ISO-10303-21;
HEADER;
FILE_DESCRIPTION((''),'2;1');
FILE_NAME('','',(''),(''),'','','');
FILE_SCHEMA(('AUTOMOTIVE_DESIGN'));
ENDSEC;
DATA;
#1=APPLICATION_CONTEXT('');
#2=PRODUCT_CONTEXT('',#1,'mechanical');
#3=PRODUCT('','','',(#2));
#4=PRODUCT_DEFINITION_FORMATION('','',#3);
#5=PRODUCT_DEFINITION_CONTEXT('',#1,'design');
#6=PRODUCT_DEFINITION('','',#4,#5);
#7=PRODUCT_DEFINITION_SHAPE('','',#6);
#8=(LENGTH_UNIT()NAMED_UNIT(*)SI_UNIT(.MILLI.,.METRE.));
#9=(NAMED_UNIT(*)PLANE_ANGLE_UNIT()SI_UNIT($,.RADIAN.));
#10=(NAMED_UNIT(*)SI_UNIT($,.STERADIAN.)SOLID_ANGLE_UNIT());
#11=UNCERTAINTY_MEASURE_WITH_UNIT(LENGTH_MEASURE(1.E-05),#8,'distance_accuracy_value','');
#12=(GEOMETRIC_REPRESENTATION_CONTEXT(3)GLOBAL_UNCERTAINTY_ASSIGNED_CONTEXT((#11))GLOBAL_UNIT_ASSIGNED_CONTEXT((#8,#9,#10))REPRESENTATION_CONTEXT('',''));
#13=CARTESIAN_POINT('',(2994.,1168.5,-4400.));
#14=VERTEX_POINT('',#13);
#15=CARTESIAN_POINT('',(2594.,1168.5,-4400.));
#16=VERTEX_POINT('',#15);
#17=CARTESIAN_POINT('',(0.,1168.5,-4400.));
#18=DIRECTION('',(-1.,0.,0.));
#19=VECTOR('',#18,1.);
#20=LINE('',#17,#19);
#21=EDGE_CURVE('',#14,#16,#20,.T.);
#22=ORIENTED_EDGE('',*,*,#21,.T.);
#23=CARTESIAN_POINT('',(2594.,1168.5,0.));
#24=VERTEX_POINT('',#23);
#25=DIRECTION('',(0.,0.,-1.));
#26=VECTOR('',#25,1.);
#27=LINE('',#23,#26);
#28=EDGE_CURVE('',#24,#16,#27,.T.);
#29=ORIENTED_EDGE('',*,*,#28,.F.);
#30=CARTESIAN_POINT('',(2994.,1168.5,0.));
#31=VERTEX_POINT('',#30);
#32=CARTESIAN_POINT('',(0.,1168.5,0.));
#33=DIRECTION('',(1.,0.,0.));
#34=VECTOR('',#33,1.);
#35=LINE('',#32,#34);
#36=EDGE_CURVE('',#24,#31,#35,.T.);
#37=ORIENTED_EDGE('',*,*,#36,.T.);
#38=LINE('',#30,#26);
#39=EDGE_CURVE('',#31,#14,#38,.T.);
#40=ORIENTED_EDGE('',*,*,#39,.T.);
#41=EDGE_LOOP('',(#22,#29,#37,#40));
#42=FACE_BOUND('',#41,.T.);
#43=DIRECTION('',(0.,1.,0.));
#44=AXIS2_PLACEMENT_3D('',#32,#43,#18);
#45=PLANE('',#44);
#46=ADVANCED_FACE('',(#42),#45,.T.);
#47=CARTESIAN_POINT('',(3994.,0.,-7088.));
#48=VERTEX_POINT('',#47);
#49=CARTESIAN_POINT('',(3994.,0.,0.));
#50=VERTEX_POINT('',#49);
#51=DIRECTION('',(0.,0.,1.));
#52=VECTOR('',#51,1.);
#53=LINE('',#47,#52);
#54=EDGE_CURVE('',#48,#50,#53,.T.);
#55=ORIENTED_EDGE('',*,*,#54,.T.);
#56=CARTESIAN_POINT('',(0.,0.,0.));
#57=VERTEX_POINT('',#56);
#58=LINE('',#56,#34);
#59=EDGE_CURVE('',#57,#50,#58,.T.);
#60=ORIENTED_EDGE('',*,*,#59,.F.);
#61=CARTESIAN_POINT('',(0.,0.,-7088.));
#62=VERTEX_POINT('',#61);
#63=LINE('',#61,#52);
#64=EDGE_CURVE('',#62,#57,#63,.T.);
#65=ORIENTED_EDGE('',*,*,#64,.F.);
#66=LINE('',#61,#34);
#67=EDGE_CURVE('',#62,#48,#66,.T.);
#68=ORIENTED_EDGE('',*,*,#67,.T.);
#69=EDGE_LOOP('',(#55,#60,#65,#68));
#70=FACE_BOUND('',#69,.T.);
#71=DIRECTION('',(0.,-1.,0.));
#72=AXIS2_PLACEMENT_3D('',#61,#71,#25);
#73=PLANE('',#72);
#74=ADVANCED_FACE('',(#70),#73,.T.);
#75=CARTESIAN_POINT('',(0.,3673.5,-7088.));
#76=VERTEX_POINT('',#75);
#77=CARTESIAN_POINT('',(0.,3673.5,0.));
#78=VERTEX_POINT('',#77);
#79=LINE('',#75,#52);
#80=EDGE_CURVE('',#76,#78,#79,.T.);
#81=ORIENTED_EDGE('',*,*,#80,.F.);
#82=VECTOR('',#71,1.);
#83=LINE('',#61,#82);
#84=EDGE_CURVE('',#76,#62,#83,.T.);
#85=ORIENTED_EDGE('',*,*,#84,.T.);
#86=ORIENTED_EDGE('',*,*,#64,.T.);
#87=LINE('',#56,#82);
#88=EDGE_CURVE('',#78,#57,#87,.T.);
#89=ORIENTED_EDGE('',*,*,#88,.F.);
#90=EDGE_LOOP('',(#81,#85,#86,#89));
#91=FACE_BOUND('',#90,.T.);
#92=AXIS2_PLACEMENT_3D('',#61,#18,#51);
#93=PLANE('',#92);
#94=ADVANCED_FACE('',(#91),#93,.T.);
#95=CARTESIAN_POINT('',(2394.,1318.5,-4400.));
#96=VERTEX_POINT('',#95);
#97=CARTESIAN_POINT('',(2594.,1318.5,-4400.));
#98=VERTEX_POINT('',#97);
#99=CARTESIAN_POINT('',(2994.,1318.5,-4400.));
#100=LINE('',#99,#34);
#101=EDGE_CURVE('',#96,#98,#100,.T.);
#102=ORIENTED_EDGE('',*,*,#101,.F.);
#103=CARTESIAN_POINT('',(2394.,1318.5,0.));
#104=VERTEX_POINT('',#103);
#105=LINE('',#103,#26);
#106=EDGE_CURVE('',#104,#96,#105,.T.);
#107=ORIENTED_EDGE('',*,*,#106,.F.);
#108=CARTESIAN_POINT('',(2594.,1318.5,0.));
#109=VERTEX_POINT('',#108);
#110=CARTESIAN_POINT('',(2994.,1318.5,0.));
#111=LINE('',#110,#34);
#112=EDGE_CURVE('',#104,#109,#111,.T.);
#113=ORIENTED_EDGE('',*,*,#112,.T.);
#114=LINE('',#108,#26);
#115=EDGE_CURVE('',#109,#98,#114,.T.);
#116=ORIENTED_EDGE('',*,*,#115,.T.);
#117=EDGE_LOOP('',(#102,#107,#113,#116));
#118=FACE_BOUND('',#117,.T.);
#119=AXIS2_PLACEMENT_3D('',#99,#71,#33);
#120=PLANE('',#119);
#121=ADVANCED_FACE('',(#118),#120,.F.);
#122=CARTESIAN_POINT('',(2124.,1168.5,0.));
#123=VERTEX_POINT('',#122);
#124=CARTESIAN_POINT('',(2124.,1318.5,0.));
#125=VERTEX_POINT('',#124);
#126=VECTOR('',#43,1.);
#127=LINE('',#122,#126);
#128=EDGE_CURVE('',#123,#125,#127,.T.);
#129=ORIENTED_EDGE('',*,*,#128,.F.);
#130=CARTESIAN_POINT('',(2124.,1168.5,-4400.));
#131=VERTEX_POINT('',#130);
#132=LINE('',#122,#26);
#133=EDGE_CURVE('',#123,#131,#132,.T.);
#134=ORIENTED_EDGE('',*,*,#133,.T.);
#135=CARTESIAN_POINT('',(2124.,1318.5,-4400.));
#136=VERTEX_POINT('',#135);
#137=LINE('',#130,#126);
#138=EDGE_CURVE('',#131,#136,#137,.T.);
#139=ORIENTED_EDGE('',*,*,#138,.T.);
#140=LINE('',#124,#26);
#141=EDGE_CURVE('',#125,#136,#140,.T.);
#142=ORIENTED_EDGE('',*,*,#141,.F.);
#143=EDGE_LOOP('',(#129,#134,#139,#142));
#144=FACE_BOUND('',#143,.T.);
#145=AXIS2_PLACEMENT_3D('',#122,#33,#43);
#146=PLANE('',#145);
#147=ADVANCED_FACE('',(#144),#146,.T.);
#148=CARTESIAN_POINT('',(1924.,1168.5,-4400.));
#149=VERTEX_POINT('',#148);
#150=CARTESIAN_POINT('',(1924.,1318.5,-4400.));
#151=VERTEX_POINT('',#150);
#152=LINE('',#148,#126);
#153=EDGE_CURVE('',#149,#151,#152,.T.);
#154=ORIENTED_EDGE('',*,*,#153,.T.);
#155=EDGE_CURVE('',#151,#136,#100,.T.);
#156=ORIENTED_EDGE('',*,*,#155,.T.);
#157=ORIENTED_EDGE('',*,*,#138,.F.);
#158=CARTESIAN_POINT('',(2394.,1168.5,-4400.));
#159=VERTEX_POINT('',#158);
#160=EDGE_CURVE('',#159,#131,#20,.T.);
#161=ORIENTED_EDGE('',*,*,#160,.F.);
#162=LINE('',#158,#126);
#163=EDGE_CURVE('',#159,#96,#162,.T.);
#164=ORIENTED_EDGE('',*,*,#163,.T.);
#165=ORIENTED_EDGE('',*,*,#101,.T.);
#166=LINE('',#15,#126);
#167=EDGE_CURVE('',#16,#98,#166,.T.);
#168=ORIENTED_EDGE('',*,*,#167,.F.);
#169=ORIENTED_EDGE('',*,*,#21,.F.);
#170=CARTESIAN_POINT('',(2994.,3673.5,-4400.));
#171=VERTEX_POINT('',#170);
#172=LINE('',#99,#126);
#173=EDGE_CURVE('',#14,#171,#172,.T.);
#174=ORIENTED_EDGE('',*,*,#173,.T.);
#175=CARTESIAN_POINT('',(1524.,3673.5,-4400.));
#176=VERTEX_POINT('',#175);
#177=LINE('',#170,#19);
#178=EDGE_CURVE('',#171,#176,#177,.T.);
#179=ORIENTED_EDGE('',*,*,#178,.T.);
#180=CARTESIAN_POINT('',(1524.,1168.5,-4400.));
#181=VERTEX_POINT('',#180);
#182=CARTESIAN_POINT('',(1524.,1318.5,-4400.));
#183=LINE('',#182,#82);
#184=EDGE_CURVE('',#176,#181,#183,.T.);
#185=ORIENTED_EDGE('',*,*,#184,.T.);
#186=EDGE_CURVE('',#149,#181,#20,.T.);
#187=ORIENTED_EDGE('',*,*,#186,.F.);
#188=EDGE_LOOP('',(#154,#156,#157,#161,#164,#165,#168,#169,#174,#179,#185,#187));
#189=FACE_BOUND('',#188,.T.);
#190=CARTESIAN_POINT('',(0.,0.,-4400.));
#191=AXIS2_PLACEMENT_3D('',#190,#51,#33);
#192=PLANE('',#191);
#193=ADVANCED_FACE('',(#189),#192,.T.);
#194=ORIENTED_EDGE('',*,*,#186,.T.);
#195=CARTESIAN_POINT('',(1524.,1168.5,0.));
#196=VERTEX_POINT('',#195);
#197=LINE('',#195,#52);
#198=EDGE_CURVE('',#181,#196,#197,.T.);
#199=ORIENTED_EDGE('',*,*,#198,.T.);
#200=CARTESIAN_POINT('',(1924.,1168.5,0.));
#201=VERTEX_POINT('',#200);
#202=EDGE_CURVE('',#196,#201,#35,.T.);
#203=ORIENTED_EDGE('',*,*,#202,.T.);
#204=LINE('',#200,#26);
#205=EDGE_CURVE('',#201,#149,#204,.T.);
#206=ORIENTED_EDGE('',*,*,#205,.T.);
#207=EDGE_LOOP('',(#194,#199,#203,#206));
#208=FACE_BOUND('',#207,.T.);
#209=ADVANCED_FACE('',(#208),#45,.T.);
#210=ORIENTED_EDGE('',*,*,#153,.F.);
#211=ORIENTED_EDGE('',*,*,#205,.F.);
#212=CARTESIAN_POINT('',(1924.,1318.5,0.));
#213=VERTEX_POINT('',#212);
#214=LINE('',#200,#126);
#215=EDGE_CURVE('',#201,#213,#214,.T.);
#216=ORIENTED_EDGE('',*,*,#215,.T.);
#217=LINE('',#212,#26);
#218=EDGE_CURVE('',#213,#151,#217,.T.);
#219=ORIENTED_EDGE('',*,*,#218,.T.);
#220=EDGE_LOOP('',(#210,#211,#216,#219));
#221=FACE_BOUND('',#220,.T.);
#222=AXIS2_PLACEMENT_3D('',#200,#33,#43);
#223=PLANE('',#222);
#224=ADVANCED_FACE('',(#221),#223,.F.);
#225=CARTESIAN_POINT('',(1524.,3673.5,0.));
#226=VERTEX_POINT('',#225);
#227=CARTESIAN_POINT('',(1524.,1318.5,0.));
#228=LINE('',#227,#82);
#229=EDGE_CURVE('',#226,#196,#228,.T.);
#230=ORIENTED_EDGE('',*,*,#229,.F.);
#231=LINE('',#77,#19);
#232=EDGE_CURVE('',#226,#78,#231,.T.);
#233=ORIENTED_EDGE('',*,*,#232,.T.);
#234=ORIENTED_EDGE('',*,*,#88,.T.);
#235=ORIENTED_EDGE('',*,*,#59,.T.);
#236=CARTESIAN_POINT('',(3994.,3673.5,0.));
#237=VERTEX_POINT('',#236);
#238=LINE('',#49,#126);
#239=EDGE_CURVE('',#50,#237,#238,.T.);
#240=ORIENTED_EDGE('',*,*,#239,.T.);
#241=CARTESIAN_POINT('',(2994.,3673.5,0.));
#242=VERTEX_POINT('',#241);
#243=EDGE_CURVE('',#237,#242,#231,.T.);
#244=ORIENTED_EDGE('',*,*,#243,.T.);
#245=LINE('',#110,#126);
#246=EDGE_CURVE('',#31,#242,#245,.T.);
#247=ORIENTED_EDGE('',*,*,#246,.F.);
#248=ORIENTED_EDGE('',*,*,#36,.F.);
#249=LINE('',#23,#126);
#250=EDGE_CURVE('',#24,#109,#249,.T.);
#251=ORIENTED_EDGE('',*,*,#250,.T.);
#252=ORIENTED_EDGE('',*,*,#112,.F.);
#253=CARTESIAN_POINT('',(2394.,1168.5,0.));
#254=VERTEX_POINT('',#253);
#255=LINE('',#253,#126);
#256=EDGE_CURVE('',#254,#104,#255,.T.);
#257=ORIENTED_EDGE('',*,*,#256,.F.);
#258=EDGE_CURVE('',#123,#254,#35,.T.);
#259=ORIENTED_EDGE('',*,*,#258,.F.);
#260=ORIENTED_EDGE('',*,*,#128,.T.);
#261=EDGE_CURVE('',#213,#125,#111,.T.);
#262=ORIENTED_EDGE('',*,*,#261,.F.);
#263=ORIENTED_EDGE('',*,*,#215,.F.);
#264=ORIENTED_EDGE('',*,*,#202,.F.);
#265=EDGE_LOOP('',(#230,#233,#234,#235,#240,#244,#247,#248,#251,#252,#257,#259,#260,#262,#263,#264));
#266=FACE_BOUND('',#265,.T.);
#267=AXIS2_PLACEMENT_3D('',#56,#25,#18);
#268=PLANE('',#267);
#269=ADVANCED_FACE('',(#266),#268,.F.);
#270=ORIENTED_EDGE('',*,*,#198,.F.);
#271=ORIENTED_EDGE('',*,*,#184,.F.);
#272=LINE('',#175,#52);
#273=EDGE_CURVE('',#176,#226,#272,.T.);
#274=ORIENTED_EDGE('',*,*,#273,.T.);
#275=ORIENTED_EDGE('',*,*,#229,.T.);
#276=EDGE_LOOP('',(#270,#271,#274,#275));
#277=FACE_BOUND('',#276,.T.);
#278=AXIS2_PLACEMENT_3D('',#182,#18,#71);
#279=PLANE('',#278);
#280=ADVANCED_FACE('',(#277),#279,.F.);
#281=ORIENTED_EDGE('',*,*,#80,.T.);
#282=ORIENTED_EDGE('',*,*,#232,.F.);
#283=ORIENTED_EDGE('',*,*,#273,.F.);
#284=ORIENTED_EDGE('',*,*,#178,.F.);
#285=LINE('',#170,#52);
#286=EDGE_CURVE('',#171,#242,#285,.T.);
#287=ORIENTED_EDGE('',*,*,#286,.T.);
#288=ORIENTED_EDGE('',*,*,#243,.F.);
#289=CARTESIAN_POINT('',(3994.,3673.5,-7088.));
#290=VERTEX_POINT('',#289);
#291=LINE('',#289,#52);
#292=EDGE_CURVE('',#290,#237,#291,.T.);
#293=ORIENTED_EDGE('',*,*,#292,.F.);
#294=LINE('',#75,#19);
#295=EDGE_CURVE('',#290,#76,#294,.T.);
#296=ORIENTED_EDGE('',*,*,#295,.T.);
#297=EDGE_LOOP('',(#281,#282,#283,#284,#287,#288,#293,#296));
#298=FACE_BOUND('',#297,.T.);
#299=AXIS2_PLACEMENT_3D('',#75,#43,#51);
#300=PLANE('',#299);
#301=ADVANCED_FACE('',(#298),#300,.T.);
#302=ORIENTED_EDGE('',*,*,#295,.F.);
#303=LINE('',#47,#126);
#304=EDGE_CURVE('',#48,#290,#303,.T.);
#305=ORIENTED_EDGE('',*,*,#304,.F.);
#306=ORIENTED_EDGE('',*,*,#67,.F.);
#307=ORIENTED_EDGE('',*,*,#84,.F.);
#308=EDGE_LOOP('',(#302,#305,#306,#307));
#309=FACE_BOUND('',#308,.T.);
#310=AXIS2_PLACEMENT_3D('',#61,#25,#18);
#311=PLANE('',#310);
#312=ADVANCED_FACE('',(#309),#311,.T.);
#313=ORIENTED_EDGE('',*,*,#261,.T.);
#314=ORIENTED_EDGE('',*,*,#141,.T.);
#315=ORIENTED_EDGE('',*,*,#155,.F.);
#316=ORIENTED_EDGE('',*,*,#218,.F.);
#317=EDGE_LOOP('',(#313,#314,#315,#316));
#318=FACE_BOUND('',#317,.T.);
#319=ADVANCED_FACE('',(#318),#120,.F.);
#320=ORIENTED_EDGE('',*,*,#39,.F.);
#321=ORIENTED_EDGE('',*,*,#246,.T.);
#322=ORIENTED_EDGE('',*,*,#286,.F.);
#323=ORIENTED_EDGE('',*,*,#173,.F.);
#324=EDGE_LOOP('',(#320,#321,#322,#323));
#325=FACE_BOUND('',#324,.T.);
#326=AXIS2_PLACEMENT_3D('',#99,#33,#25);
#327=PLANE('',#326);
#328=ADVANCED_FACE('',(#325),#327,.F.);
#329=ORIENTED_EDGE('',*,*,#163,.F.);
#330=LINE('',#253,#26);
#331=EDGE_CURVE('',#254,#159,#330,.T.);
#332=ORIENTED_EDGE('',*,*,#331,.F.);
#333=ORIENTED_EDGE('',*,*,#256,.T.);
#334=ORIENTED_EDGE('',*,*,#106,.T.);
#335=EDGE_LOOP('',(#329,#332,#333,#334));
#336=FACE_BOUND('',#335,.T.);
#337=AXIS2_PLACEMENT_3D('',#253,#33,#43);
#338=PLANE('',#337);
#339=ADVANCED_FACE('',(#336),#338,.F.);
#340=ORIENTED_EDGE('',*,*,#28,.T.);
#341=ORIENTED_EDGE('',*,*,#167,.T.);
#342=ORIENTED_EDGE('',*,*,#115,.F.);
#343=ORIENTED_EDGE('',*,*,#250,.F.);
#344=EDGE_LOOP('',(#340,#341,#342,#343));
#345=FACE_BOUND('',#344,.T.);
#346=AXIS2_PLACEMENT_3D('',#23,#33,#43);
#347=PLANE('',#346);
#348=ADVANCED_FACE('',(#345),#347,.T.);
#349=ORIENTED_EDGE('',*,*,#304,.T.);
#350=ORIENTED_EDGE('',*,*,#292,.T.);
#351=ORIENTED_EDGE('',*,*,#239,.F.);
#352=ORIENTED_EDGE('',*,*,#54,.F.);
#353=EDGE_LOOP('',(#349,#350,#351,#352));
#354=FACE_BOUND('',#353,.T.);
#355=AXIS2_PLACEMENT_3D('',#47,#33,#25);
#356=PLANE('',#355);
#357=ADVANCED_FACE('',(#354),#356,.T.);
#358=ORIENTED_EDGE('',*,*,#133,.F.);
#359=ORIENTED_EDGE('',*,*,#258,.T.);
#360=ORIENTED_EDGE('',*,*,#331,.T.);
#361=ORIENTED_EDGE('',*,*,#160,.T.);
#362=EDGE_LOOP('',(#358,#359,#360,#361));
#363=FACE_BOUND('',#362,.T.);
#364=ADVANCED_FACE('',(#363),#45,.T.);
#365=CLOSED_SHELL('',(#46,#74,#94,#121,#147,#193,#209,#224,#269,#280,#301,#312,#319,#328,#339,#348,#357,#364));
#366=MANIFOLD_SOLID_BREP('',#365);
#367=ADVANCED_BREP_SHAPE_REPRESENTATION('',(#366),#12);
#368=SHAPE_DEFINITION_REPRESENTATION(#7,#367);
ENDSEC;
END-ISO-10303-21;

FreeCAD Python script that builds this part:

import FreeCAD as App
import Part
import Sketcher
from FreeCAD import Vector


def add_polygon(sketch, points):
    """Adds a closed chain of lines whose ends are joined by coincident constraints."""
    first, n = sketch.GeometryCount, len(points)
    for a, b in zip(points, points[1:] + points[:1]):
        sketch.addGeometry(Part.LineSegment(App.Vector(*a, 0), App.Vector(*b, 0)), False)
    for i in range(n):
        sketch.addConstraint(Sketcher.Constraint("Coincident", first + i, 2, first + (i + 1) % n, 1))

doc = App.newDocument("Part")
body = doc.addObject("PartDesign::Body", "Body")

sketch1 = body.newObject("Sketcher::SketchObject", "Sketch")
sketch1.AttachmentSupport = (doc.getObject("XY_Plane"), [""])
sketch1.MapMode = "FlatFace"
add_polygon(sketch1, [(0, 3674), (0, 0), (3994, 0), (3994, 3674)])
sketch1.addConstraint([
    Sketcher.Constraint("Vertical", 0),
    Sketcher.Constraint("Horizontal", 1),
    Sketcher.Constraint("Vertical", 2),
    Sketcher.Constraint("Horizontal", 3),
    Sketcher.Constraint("Coincident", 0, 2, -1, 1),
    Sketcher.Constraint("DistanceX", 1, 1, 1, 2, 3994.0),
    Sketcher.Constraint("DistanceY", 0, 2, 0, 1, 3673.5),
])
pad1 = body.newObject("PartDesign::Pad", "Pad")
pad1.Profile = sketch1
pad1.Length = 7088
pad1.Reversed = True

sketch2 = body.newObject("Sketcher::SketchObject", "Sketch001")
sketch2.AttachmentSupport = (doc.getObject("XY_Plane"), [""])
sketch2.MapMode = "FlatFace"
add_polygon(sketch2, [(1524, 3674), (1524, 1318), (2994, 1318), (2994, 3674)])
sketch2.addConstraint([
    Sketcher.Constraint("Vertical", 0),
    Sketcher.Constraint("Horizontal", 1),
    Sketcher.Constraint("Vertical", 2),
    Sketcher.Constraint("Horizontal", 3),
    Sketcher.Constraint("DistanceX", 1, 1, 1, 2, 1470.0),
    Sketcher.Constraint("DistanceY", 0, 2, 0, 1, 2355.0),
    Sketcher.Constraint("DistanceX", -1, 1, 0, 2, 1524.0),
    Sketcher.Constraint("DistanceY", -1, 1, 0, 2, 1318.5),
])
pocket1 = body.newObject("PartDesign::Pocket", "Pocket")
pocket1.Profile = sketch2
pocket1.Length = 4400

sketch3 = body.newObject("Sketcher::SketchObject", "Sketch002")
sketch3.AttachmentSupport = (doc.getObject("XZ_Plane"), [""])
sketch3.MapMode = "FlatFace"
sketch3.AttachmentOffset = App.Placement(Vector(0, 0, -1318.5), App.Rotation())
add_polygon(sketch3, [(1524, -4400), (1524, 0), (1924, 0), (1924, -4400)])
add_polygon(sketch3, [(2124, -4400), (2124, 0), (2394, 0), (2394, -4400)])
add_polygon(sketch3, [(2594, -4400), (2594, 0), (2994, 0), (2994, -4400)])
sketch3.addConstraint([
    Sketcher.Constraint("Vertical", 0),
    Sketcher.Constraint("Horizontal", 1),
    Sketcher.Constraint("Vertical", 2),
    Sketcher.Constraint("Horizontal", 3),
    Sketcher.Constraint("Vertical", 4),
    Sketcher.Constraint("Horizontal", 5),
    Sketcher.Constraint("Vertical", 6),
    Sketcher.Constraint("Horizontal", 7),
    Sketcher.Constraint("Vertical", 8),
    Sketcher.Constraint("Horizontal", 9),
    Sketcher.Constraint("Vertical", 10),
    Sketcher.Constraint("Horizontal", 11),
    Sketcher.Constraint("PointOnObject", 0, 2, -1),
    Sketcher.Constraint("PointOnObject", 4, 2, -1),
    Sketcher.Constraint("PointOnObject", 8, 2, -1),
    Sketcher.Constraint("Horizontal", 3, 2, 6, 2),
    Sketcher.Constraint("Horizontal", 7, 2, 10, 2),
    Sketcher.Constraint("Equal", 3, 9),
    Sketcher.Constraint("DistanceX", 1, 1, 1, 2, 400.0),
    Sketcher.Constraint("DistanceX", 5, 1, 5, 2, 270.0),
    Sketcher.Constraint("DistanceY", 0, 1, 0, 2, 4400.0),
    Sketcher.Constraint("DistanceX", -1, 1, 0, 2, 1524.0),
    Sketcher.Constraint("DistanceX", -1, 1, 4, 2, 2124.0),
    Sketcher.Constraint("DistanceX", -1, 1, 8, 2, 2594.0),
])
pocket2 = body.newObject("PartDesign::Pocket", "Pocket001")
pocket2.Profile = sketch3
pocket2.Length = 150
pocket2.Reversed = True

doc.recompute()
